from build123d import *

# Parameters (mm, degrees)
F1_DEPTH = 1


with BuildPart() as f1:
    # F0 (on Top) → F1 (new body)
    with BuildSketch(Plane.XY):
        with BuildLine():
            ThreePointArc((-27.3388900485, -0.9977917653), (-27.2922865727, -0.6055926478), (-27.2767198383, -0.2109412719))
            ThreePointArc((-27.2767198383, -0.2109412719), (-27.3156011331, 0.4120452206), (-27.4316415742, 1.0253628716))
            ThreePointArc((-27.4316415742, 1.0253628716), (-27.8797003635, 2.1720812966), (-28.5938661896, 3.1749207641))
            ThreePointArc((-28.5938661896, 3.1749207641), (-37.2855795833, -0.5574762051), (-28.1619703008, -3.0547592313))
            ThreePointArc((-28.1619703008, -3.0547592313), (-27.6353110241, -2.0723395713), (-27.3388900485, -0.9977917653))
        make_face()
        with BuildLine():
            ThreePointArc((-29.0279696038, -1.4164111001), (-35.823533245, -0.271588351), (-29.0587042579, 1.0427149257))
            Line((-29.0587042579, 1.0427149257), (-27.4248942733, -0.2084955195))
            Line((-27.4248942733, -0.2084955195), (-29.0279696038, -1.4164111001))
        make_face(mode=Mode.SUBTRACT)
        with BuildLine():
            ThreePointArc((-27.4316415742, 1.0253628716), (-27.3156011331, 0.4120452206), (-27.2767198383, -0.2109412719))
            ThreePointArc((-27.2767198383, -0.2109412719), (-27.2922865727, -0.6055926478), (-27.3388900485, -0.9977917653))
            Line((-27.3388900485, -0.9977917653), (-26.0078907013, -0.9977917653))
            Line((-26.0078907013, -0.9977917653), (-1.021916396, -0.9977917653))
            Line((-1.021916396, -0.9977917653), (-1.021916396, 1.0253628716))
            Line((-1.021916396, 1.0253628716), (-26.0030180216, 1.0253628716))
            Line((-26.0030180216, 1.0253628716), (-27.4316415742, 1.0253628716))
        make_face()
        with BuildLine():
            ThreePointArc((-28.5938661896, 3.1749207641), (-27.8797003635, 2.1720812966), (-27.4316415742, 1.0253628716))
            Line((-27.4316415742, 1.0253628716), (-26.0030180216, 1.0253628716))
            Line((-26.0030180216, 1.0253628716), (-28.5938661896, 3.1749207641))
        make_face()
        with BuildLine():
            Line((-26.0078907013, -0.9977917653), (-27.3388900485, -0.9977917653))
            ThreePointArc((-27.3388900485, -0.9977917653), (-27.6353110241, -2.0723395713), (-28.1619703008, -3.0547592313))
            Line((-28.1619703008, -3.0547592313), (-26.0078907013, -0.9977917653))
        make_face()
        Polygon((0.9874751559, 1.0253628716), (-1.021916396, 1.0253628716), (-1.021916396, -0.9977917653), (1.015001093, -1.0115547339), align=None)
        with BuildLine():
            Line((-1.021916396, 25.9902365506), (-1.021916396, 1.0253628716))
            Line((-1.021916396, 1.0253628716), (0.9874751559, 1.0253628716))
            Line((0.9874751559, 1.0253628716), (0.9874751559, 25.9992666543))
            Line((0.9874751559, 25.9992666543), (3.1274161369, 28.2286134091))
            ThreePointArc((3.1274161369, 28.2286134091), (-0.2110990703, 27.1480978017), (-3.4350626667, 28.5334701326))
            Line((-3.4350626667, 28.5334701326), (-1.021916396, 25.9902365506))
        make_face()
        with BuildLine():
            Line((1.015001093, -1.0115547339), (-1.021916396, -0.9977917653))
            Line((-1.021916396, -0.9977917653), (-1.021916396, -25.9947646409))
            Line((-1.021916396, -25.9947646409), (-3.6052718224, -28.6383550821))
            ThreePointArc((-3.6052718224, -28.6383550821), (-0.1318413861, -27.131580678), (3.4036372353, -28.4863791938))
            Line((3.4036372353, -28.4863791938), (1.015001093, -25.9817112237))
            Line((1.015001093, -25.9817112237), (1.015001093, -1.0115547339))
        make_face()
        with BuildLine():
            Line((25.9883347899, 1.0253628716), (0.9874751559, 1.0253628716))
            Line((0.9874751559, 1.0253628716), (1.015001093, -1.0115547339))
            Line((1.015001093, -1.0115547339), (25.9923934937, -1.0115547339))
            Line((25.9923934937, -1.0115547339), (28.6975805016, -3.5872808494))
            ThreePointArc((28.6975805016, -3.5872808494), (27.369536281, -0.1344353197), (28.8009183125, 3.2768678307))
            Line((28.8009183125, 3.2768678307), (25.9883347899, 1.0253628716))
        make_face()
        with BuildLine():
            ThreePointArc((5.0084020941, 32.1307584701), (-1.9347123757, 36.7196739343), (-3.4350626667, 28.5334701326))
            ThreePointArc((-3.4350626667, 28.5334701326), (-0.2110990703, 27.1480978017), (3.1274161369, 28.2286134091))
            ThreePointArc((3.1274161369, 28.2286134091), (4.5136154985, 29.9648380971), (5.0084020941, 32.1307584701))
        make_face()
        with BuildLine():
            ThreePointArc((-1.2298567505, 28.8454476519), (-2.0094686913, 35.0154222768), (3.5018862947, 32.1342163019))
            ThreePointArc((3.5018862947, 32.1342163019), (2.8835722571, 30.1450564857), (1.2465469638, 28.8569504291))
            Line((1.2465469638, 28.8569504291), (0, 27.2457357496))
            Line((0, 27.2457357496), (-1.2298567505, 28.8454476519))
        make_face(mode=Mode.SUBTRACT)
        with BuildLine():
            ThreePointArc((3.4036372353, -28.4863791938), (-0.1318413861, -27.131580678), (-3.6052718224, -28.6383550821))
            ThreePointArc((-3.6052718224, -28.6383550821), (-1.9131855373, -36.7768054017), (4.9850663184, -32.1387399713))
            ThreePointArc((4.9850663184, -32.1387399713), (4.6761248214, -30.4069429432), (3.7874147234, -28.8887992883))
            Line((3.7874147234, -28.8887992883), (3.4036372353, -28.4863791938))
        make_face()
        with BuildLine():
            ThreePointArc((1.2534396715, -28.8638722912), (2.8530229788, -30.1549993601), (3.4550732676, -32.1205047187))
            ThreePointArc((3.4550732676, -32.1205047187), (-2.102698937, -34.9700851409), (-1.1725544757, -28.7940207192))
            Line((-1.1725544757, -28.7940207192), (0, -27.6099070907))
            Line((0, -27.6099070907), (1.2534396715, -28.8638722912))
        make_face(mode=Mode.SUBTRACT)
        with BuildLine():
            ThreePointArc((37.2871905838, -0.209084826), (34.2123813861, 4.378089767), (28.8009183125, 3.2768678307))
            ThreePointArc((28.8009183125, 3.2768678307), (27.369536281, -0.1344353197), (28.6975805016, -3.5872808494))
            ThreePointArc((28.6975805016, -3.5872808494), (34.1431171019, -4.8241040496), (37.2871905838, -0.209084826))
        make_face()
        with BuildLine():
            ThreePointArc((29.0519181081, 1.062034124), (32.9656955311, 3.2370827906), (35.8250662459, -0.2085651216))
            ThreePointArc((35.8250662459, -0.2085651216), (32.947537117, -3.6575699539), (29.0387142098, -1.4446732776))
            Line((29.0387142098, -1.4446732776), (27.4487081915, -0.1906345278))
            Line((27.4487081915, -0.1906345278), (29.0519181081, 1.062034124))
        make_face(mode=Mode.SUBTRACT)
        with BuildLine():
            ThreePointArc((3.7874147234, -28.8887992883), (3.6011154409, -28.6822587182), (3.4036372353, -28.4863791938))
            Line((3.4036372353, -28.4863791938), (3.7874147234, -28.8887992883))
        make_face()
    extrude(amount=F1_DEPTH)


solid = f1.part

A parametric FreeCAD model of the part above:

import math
import FreeCAD as App
import Part
import Sketcher
from FreeCAD import Vector
Q = App.Units.Quantity

doc = App.newDocument("Part")
params = doc.addObject("Spreadsheet::Sheet", "Params")
for row, (alias, value) in enumerate([
    ("pad1_length", "1 mm"),
], start=1):
    params.set(f"A{row}", alias)
    params.set(f"B{row}", "=" + value)
    params.setAlias(f"B{row}", alias)

body = doc.addObject("PartDesign::Body", "Body")

# Sketch on XY plane
sketch1 = body.newObject("Sketcher::SketchObject", "Sketch")
sketch1.AttachmentSupport = (doc.getObject("XY_Plane"), [""])
sketch1.MapMode = "FlatFace"
sketch1.addGeometry(Part.LineSegment(Vector(-26, -1, 0), Vector(-1, -1, 0)), False)
sketch1.addGeometry(Part.LineSegment(Vector(-1, -1, 0), Vector(-1, -26, 0)), False)
sketch1.addGeometry(Part.LineSegment(Vector(-1, -26, 0), Vector(-3.6, -28.6, 0)), False)
sketch1.addGeometry(Part.ArcOfCircle(Part.Circle(Vector(0, -32.1, 0), Vector(0, 0, 1), 5), math.radians(136), math.radians(360)), False)
sketch1.addGeometry(Part.ArcOfCircle(Part.Circle(Vector(0, -32.1, 0), Vector(0, 0, 1), 5), math.radians(0), math.radians(40)), False)
sketch1.addGeometry(Part.ArcOfCircle(Part.Circle(Vector(0, -32.1, 0), Vector(0, 0, 1), 5), math.radians(40.46), math.radians(46.82)), False)
sketch1.addGeometry(Part.LineSegment(Vector(3.4, -28.5, 0), Vector(1, -26, 0)), False)
sketch1.addGeometry(Part.LineSegment(Vector(1, -26, 0), Vector(1, -1, 0)), False)
sketch1.addGeometry(Part.LineSegment(Vector(1, -1, 0), Vector(26, -1, 0)), False)
sketch1.addGeometry(Part.LineSegment(Vector(26, -1, 0), Vector(28.7, -3.6, 0)), False)
sketch1.addGeometry(Part.ArcOfCircle(Part.Circle(Vector(32.3, -0.2, 0), Vector(0, 0, 1), 5), math.radians(-137), math.radians(135)), False)
sketch1.addGeometry(Part.LineSegment(Vector(28.8, 3.3, 0), Vector(26, 1, 0)), False)
sketch1.addGeometry(Part.LineSegment(Vector(26, 1, 0), Vector(1, 1, 0)), False)
sketch1.addGeometry(Part.LineSegment(Vector(1, 1, 0), Vector(1, 26, 0)), False)
sketch1.addGeometry(Part.LineSegment(Vector(1, 26, 0), Vector(3.1, 28.2, 0)), False)
sketch1.addGeometry(Part.ArcOfCircle(Part.Circle(Vector(0, 32.1, 0), Vector(0, 0, 1), 5), math.radians(-51), math.radians(0)), False)
sketch1.addGeometry(Part.ArcOfCircle(Part.Circle(Vector(0, 32.1, 0), Vector(0, 0, 1), 5), math.radians(0), math.radians(226)), False)
sketch1.addGeometry(Part.LineSegment(Vector(-3.4, 28.5, 0), Vector(-1, 26, 0)), False)
sketch1.addGeometry(Part.LineSegment(Vector(-1, 26, 0), Vector(-1, 1, 0)), False)
sketch1.addGeometry(Part.LineSegment(Vector(-1, 1, 0), Vector(-26, 1, 0)), False)
sketch1.addGeometry(Part.LineSegment(Vector(-26, 1, 0), Vector(-28.6, 3.2, 0)), False)
sketch1.addGeometry(Part.ArcOfCircle(Part.Circle(Vector(-32.3, -0.2, 0), Vector(0, 0, 1), 5), math.radians(43), math.radians(325)), False)
sketch1.addGeometry(Part.LineSegment(Vector(-28.2, -3.1, 0), Vector(-26, -1, 0)), False)
sketch1.addGeometry(Part.LineSegment(Vector(0, -27.6, 0), Vector(1.3, -28.9, 0)), False)
sketch1.addGeometry(Part.ArcOfCircle(Part.Circle(Vector(-0.1, -32.1, 0), Vector(0, 0, 1), 3.5), math.radians(0), math.radians(68)), False)
sketch1.addGeometry(Part.ArcOfCircle(Part.Circle(Vector(-0.1, -32.1, 0), Vector(0, 0, 1), 3.5), math.radians(109), math.radians(360)), False)
sketch1.addGeometry(Part.LineSegment(Vector(-1.2, -28.8, 0), Vector(0, -27.6, 0)), False)
sketch1.addGeometry(Part.LineSegment(Vector(-27.4, -0.2, 0), Vector(-29, -1.4, 0)), False)
sketch1.addGeometry(Part.ArcOfCircle(Part.Circle(Vector(-32.3, -0.2, 0), Vector(0, 0, 1), 3.5), math.radians(21), math.radians(340)), False)
sketch1.addGeometry(Part.LineSegment(Vector(-29.1, 1, 0), Vector(-27.4, -0.2, 0)), False)
sketch1.addGeometry(Part.LineSegment(Vector(27.4, -0.2, 0), Vector(29.1, 1.1, 0)), False)
sketch1.addGeometry(Part.ArcOfCircle(Part.Circle(Vector(32.3, -0.2, 0), Vector(0, 0, 1), 3.5), math.radians(0), math.radians(159)), False)
sketch1.addGeometry(Part.ArcOfCircle(Part.Circle(Vector(32.3, -0.2, 0), Vector(0, 0, 1), 3.5), math.radians(-159), math.radians(0)), False)
sketch1.addGeometry(Part.LineSegment(Vector(29, -1.4, 0), Vector(27.4, -0.2, 0)), False)
sketch1.addGeometry(Part.LineSegment(Vector(0, 27.2, 0), Vector(-1.2, 28.8, 0)), False)
sketch1.addGeometry(Part.ArcOfCircle(Part.Circle(Vector(0, 32.1, 0), Vector(0, 0, 1), 3.5), math.radians(0), math.radians(250)), False)
sketch1.addGeometry(Part.ArcOfCircle(Part.Circle(Vector(0, 32.1, 0), Vector(0, 0, 1), 3.5), math.radians(-69), math.radians(0)), False)
sketch1.addGeometry(Part.LineSegment(Vector(1.2, 28.9, 0), Vector(0, 27.2, 0)), False)
sketch1.addConstraint(Sketcher.Constraint("Coincident", 0, 2, 1, 1))
sketch1.addConstraint(Sketcher.Constraint("Coincident", 1, 2, 2, 1))
sketch1.addConstraint(Sketcher.Constraint("Tangent", 2, 2, 3, 1))
sketch1.addConstraint(Sketcher.Constraint("Tangent", 3, 2, 4, 1))
sketch1.addConstraint(Sketcher.Constraint("Tangent", 4, 2, 5, 1))
sketch1.addConstraint(Sketcher.Constraint("Coincident", 5, 2, 6, 1))
sketch1.addConstraint(Sketcher.Constraint("Coincident", 6, 2, 7, 1))
sketch1.addConstraint(Sketcher.Constraint("Coincident", 7, 2, 8, 1))
sketch1.addConstraint(Sketcher.Constraint("Coincident", 8, 2, 9, 1))
sketch1.addConstraint(Sketcher.Constraint("Coincident", 9, 2, 10, 1))
sketch1.addConstraint(Sketcher.Constraint("Coincident", 10, 2, 11, 1))
sketch1.addConstraint(Sketcher.Constraint("Coincident", 11, 2, 12, 1))
sketch1.addConstraint(Sketcher.Constraint("Coincident", 12, 2, 13, 1))
sketch1.addConstraint(Sketcher.Constraint("Coincident", 13, 2, 14, 1))
sketch1.addConstraint(Sketcher.Constraint("Coincident", 14, 2, 15, 1))
sketch1.addConstraint(Sketcher.Constraint("Tangent", 15, 2, 16, 1))
sketch1.addConstraint(Sketcher.Constraint("Coincident", 16, 2, 17, 1))
sketch1.addConstraint(Sketcher.Constraint("Coincident", 17, 2, 18, 1))
sketch1.addConstraint(Sketcher.Constraint("Coincident", 18, 2, 19, 1))
sketch1.addConstraint(Sketcher.Constraint("Coincident", 19, 2, 20, 1))
sketch1.addConstraint(Sketcher.Constraint("Coincident", 20, 2, 21, 1))
sketch1.addConstraint(Sketcher.Constraint("Coincident", 21, 2, 22, 1))
sketch1.addConstraint(Sketcher.Constraint("Coincident", 22, 2, 0, 1))
sketch1.addConstraint(Sketcher.Constraint("Coincident", 23, 2, 24, 2))
sketch1.addConstraint(Sketcher.Constraint("Tangent", 24, 1, 25, 2))
sketch1.addConstraint(Sketcher.Constraint("Coincident", 25, 1, 26, 1))
sketch1.addConstraint(Sketcher.Constraint("Coincident", 26, 2, 23, 1))
sketch1.addConstraint(Sketcher.Constraint("Coincident", 27, 2, 28, 2))
sketch1.addConstraint(Sketcher.Constraint("Coincident", 28, 1, 29, 1))
sketch1.addConstraint(Sketcher.Constraint("Coincident", 29, 2, 27, 1))
sketch1.addConstraint(Sketcher.Constraint("Coincident", 30, 2, 31, 2))
sketch1.addConstraint(Sketcher.Constraint("Tangent", 31, 1, 32, 2))
sketch1.addConstraint(Sketcher.Constraint("Coincident", 32, 1, 33, 1))
sketch1.addConstraint(Sketcher.Constraint("Coincident", 33, 2, 30, 1))
sketch1.addConstraint(Sketcher.Constraint("Coincident", 34, 2, 35, 2))
sketch1.addConstraint(Sketcher.Constraint("Tangent", 35, 1, 36, 2))
sketch1.addConstraint(Sketcher.Constraint("Coincident", 36, 1, 37, 1))
sketch1.addConstraint(Sketcher.Constraint("Coincident", 37, 2, 34, 1))
sketch1.addConstraint(Sketcher.Constraint("Horizontal", 0))
sketch1.addConstraint(Sketcher.Constraint("Vertical", 1))
sketch1.addConstraint(Sketcher.Constraint("Vertical", 7))
sketch1.addConstraint(Sketcher.Constraint("Horizontal", 8))
sketch1.addConstraint(Sketcher.Constraint("Horizontal", 12))
sketch1.addConstraint(Sketcher.Constraint("Vertical", 13))
sketch1.addConstraint(Sketcher.Constraint("Vertical", 18))
sketch1.addConstraint(Sketcher.Constraint("Horizontal", 19))
sketch1.addConstraint(Sketcher.Constraint("Coincident", 5, 3, 3, 3))
sketch1.addConstraint(Sketcher.Constraint("Equal", 15, 16))
sketch1.addConstraint(Sketcher.Constraint("Equal", 24, 25))
sketch1.addConstraint(Sketcher.Constraint("Equal", 31, 32))
sketch1.addConstraint(Sketcher.Constraint("Equal", 35, 36))
sketch1.addConstraint(Sketcher.Constraint("PointOnObject", 26, 2, -2))
sketch1.addConstraint(Sketcher.Constraint("PointOnObject", 37, 2, -2))
sketch1.addConstraint(Sketcher.Constraint("Horizontal", 5, 3, 3, 2))
sketch1.addConstraint(Sketcher.Constraint("Horizontal", 16, 3, 15, 2))
sketch1.addConstraint(Sketcher.Constraint("Horizontal", 12, 2, 18, 2))
sketch1.addConstraint(Sketcher.Constraint("Horizontal", 25, 3, 24, 1))
sketch1.addConstraint(Sketcher.Constraint("Horizontal", 32, 3, 31, 1))
sketch1.addConstraint(Sketcher.Constraint("Horizontal", 36, 3, 35, 1))
sketch1.addConstraint(Sketcher.Constraint("Vertical", 1, 2, 17, 2))
sketch1.addConstraint(Sketcher.Constraint("Radius", 10, Q("4.959108 mm")))
sketch1.addConstraint(Sketcher.Constraint("Radius", 21, Q("5.010429 mm")))
sketch1.addConstraint(Sketcher.Constraint("Radius", 28, Q("3.50186 mm")))
sketch1.addConstraint(Sketcher.Constraint("Radius", 35, Q("3.508791 mm")))
sketch1.addConstraint(Sketcher.Constraint("DistanceX", 19, 2, 19, 1, Q("24.981102 mm")))
sketch1.addConstraint(Sketcher.Constraint("DistanceX", -1, 1, 6, 2, Q("1.015001 mm")))
sketch1.addConstraint(Sketcher.Constraint("Radius", 3, Q("5.008336 mm")))
sketch1.addConstraint(Sketcher.Constraint("Radius", 15, Q("4.988034 mm")))
sketch1.addConstraint(Sketcher.Constraint("Radius", 24, Q("3.509404 mm")))
sketch1.addConstraint(Sketcher.Constraint("Radius", 31, Q("3.505752 mm")))
sketch1.addConstraint(Sketcher.Constraint("DistanceX", 2, 2, 3, 3, Q("3.582002 mm")))
sketch1.addConstraint(Sketcher.Constraint("DistanceX", 27, 2, 21, 2, Q("0.865999 mm")))
sketch1.addConstraint(Sketcher.Constraint("DistanceX", 10, 2, 30, 2, Q("0.251 mm")))
sketch1.addConstraint(Sketcher.Constraint("Distance", 14, Q("3.0902 mm")))
sketch1.addConstraint(Sketcher.Constraint("DistanceX", 12, 2, 12, 1, Q("25.00086 mm")))
sketch1.addConstraint(Sketcher.Constraint("DistanceY", 4, 2, -1, 1, Q("28.888799 mm")))
sketch1.addConstraint(Sketcher.Constraint("DistanceY", 5, 3, 15, 3, Q("64.269498 mm")))
sketch1.addConstraint(Sketcher.Constraint("DistanceY", 3, 3, 21, 3, Q("31.927799 mm")))
sketch1.addConstraint(Sketcher.Constraint("DistanceX", 28, 3, 21, 3, Q("0.034798 mm")))
sketch1.addConstraint(Sketcher.Constraint("DistanceY", 2, 2, 7, 2, Q("27.6268 mm")))
sketch1.addConstraint(Sketcher.Constraint("DistanceX", 9, 2, 10, 3, Q("3.630502 mm")))
sketch1.addConstraint(Sketcher.Constraint("DistanceY", 31, 3, 30, 2, Q("1.270599 mm")))
sketch1.addConstraint(Sketcher.Constraint("DistanceX", 32, 1, 31, 3, Q("3.2806 mm")))
sketch1.addConstraint(Sketcher.Constraint("DistanceY", 17, 2, 37, 2, Q("1.255499 mm")))
sketch1.addConstraint(Sketcher.Constraint("Distance", 6, Q("3.461061 mm")))
sketch1.addConstraint(Sketcher.Constraint("Distance", 9, Q("3.735291 mm")))
sketch1.addConstraint(Sketcher.Constraint("Distance", 22, Q("2.978452 mm")))
sketch1.addConstraint(Sketcher.Constraint("Distance", 29, Q("2.057878 mm")))
sketch1.addConstraint(Sketcher.Constraint("Distance", 37, Q("2.037128 mm")))
sketch1.addConstraint(Sketcher.Constraint("DistanceX", 0, 1, 0, 2, Q("24.985974 mm")))
sketch1.addConstraint(Sketcher.Constraint("DistanceX", 8, 1, 8, 2, Q("24.977392 mm")))
sketch1.addConstraint(Sketcher.Constraint("DistanceY", 1, 2, 1, 1, Q("24.996973 mm")))
sketch1.addConstraint(Sketcher.Constraint("DistanceY", 7, 1, 7, 2, Q("24.970156 mm")))
sketch1.addConstraint(Sketcher.Constraint("DistanceY", 13, 1, 13, 2, Q("24.973904 mm")))
sketch1.addConstraint(Sketcher.Constraint("DistanceY", 18, 2, 18, 1, Q("24.964874 mm")))
sketch1.addConstraint(Sketcher.Constraint("DistanceX", 3, 3, -1, 1, Q("0.02327 mm")))
sketch1.addConstraint(Sketcher.Constraint("DistanceY", 3, 3, -1, 1, Q("32.13874 mm")))
sketch1.addConstraint(Sketcher.Constraint("DistanceX", 21, 3, -1, 1, Q("32.287149 mm")))
sketch1.addConstraint(Sketcher.Constraint("DistanceX", 24, 3, -1, 1, Q("0.054331 mm")))
sketch1.addConstraint(Sketcher.Constraint("DistanceY", 0, 2, -1, 1, Q("0.997792 mm")))
sketch1.addConstraint(Sketcher.Constraint("DistanceX", -1, 1, 9, 2, Q("28.697581 mm")))
sketch1.addConstraint(Sketcher.Constraint("DistanceX", -1, 1, 10, 2, Q("28.800918 mm")))
sketch1.addConstraint(Sketcher.Constraint("DistanceY", -1, 1, 16, 2, Q("28.53347 mm")))
sketch1.addConstraint(Sketcher.Constraint("DistanceY", -1, 1, 20, 2, Q("3.174921 mm")))
sketch1.addConstraint(Sketcher.Constraint("DistanceX", -1, 1, 23, 2, Q("1.25344 mm")))
sketch1.addConstraint(Sketcher.Constraint("DistanceY", 25, 1, -1, 1, Q("28.794021 mm")))
sketch1.addConstraint(Sketcher.Constraint("DistanceY", 27, 2, -1, 1, Q("1.416411 mm")))
sketch1.addConstraint(Sketcher.Constraint("DistanceX", -1, 1, 33, 2, Q("27.448708 mm")))
sketch1.addConstraint(Sketcher.Constraint("DistanceY", -1, 1, 36, 1, Q("28.85695 mm")))
sketch1.addConstraint(Sketcher.Constraint("DistanceY", 24, 3, 10, 3, Q("31.91142 mm")))
sketch1.addConstraint(Sketcher.Constraint("DistanceY", 10, 3, 31, 3, Q("0.00052 mm")))
sketch1.addConstraint(Sketcher.Constraint("DistanceX", 35, 3, 31, 3, Q("32.326218 mm")))
sketch1.addConstraint(Sketcher.Constraint("DistanceY", 31, 3, 35, 3, Q("32.342781 mm")))
sketch1.addConstraint(Sketcher.Constraint("DistanceX", 11, 2, 8, 2, Q("0.004059 mm")))
sketch1.addConstraint(Sketcher.Constraint("DistanceX", 13, 2, 14, 2, Q("2.139941 mm")))
sketch1.addConstraint(Sketcher.Constraint("DistanceX", 28, 1, 20, 2, Q("0.464838 mm")))
sketch1.addConstraint(Sketcher.Constraint("DistanceY", 29, 2, 19, 2, Q("1.233858 mm")))
sketch1.addConstraint(Sketcher.Constraint("DistanceY", 8, 2, 33, 2, Q("0.82092 mm")))
sketch1.addConstraint(Sketcher.Constraint("DistanceX", 34, 2, 17, 2, Q("0.20794 mm")))
sketch1.addConstraint(Sketcher.Constraint("Distance", 23, Q("1.773003 mm")))
pad1 = body.newObject("PartDesign::Pad", "Pad")
pad1.Profile = sketch1
pad1.setExpression("Length", "Params.pad1_length")

doc.recompute()
